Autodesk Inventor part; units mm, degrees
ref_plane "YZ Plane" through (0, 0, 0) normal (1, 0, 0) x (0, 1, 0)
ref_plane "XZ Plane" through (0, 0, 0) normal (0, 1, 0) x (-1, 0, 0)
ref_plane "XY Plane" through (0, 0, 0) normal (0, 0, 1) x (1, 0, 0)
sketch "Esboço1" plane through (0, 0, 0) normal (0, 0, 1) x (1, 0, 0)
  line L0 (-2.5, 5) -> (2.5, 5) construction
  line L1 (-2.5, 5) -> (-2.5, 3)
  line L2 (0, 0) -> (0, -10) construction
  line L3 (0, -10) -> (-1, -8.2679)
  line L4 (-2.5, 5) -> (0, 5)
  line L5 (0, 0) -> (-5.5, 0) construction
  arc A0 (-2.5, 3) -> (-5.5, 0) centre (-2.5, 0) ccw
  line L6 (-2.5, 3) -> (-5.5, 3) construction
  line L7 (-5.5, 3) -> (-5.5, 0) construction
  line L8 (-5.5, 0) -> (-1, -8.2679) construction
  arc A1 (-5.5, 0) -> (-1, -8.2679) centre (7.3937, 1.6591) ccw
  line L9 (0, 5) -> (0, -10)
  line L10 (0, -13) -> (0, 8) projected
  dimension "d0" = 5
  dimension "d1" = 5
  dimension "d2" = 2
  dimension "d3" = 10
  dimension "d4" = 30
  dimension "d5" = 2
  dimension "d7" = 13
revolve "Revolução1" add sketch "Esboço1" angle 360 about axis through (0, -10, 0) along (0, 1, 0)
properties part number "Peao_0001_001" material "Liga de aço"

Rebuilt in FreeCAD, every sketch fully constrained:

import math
import FreeCAD as App
import Part
import Sketcher
Q = App.Units.Quantity

doc = App.newDocument("Part")
body = doc.addObject("PartDesign::Body", "Body")

# Sketch on XY plane
sketch1 = body.newObject("Sketcher::SketchObject", "Sketch")
sketch1.AttachmentSupport = (doc.getObject("XY_Plane"), [""])
sketch1.MapMode = "FlatFace"
sketch1.addGeometry(Part.LineSegment(App.Vector(0, 5, 0), App.Vector(-2.5, 5, 0)), False)
sketch1.addGeometry(Part.LineSegment(App.Vector(-2.5, 5, 0), App.Vector(-2.5, 3, 0)), False)
sketch1.addGeometry(Part.ArcOfCircle(Part.Circle(App.Vector(-2.5, 0, 0), App.Vector(0, 0, 1), 3), math.radians(90), math.radians(180)), False)
sketch1.addGeometry(Part.ArcOfCircle(Part.Circle(App.Vector(7.4, 1.7, 0), App.Vector(0, 0, 1), 13), math.radians(-173), math.radians(-130)), False)
sketch1.addGeometry(Part.LineSegment(App.Vector(-1, -8.3, 0), App.Vector(0, -10, 0)), False)
sketch1.addGeometry(Part.LineSegment(App.Vector(0, -10, 0), App.Vector(0, 5, 0)), False)
sketch1.addConstraint(Sketcher.Constraint("Coincident", 0, 2, 1, 1))
sketch1.addConstraint(Sketcher.Constraint("Coincident", 1, 2, 2, 1))
sketch1.addConstraint(Sketcher.Constraint("Coincident", 2, 2, 3, 1))
sketch1.addConstraint(Sketcher.Constraint("Coincident", 3, 2, 4, 1))
sketch1.addConstraint(Sketcher.Constraint("Coincident", 4, 2, 5, 1))
sketch1.addConstraint(Sketcher.Constraint("Coincident", 5, 2, 0, 1))
sketch1.addConstraint(Sketcher.Constraint("Horizontal", 0))
sketch1.addConstraint(Sketcher.Constraint("Vertical", 1))
sketch1.addConstraint(Sketcher.Constraint("Vertical", 5))
sketch1.addConstraint(Sketcher.Constraint("PointOnObject", 2, 3, -1))
sketch1.addConstraint(Sketcher.Constraint("PointOnObject", 2, 2, -1))
sketch1.addConstraint(Sketcher.Constraint("PointOnObject", 4, 2, -2))
sketch1.addConstraint(Sketcher.Constraint("Vertical", 2, 3, 0, 2))
sketch1.addConstraint(Sketcher.Constraint("Radius", 3, 13.0))
sketch1.addConstraint(Sketcher.Constraint("DistanceY", 1, 2, 1, 1, 2.0))
sketch1.addConstraint(Sketcher.Constraint("Distance", 4, 2.0))
sketch1.addConstraint(Sketcher.Constraint("DistanceY", -1, 1, 0, 2, 5.0))
sketch1.addConstraint(Sketcher.Constraint("DistanceY", 4, 2, -1, 1, 10.0))
sketch1.addConstraint(Sketcher.Constraint("Angle", 4, Q("-60.0007 deg")))
sketch1.addConstraint(Sketcher.Constraint("DistanceX", 0, 2, 0, 1, 2.5))
revolution = body.newObject("PartDesign::Revolution", "Revolution")
revolution.Profile = sketch1
revolution.ReferenceAxis = (sketch1, ["V_Axis"])
revolution.Angle = 360

doc.recompute()
